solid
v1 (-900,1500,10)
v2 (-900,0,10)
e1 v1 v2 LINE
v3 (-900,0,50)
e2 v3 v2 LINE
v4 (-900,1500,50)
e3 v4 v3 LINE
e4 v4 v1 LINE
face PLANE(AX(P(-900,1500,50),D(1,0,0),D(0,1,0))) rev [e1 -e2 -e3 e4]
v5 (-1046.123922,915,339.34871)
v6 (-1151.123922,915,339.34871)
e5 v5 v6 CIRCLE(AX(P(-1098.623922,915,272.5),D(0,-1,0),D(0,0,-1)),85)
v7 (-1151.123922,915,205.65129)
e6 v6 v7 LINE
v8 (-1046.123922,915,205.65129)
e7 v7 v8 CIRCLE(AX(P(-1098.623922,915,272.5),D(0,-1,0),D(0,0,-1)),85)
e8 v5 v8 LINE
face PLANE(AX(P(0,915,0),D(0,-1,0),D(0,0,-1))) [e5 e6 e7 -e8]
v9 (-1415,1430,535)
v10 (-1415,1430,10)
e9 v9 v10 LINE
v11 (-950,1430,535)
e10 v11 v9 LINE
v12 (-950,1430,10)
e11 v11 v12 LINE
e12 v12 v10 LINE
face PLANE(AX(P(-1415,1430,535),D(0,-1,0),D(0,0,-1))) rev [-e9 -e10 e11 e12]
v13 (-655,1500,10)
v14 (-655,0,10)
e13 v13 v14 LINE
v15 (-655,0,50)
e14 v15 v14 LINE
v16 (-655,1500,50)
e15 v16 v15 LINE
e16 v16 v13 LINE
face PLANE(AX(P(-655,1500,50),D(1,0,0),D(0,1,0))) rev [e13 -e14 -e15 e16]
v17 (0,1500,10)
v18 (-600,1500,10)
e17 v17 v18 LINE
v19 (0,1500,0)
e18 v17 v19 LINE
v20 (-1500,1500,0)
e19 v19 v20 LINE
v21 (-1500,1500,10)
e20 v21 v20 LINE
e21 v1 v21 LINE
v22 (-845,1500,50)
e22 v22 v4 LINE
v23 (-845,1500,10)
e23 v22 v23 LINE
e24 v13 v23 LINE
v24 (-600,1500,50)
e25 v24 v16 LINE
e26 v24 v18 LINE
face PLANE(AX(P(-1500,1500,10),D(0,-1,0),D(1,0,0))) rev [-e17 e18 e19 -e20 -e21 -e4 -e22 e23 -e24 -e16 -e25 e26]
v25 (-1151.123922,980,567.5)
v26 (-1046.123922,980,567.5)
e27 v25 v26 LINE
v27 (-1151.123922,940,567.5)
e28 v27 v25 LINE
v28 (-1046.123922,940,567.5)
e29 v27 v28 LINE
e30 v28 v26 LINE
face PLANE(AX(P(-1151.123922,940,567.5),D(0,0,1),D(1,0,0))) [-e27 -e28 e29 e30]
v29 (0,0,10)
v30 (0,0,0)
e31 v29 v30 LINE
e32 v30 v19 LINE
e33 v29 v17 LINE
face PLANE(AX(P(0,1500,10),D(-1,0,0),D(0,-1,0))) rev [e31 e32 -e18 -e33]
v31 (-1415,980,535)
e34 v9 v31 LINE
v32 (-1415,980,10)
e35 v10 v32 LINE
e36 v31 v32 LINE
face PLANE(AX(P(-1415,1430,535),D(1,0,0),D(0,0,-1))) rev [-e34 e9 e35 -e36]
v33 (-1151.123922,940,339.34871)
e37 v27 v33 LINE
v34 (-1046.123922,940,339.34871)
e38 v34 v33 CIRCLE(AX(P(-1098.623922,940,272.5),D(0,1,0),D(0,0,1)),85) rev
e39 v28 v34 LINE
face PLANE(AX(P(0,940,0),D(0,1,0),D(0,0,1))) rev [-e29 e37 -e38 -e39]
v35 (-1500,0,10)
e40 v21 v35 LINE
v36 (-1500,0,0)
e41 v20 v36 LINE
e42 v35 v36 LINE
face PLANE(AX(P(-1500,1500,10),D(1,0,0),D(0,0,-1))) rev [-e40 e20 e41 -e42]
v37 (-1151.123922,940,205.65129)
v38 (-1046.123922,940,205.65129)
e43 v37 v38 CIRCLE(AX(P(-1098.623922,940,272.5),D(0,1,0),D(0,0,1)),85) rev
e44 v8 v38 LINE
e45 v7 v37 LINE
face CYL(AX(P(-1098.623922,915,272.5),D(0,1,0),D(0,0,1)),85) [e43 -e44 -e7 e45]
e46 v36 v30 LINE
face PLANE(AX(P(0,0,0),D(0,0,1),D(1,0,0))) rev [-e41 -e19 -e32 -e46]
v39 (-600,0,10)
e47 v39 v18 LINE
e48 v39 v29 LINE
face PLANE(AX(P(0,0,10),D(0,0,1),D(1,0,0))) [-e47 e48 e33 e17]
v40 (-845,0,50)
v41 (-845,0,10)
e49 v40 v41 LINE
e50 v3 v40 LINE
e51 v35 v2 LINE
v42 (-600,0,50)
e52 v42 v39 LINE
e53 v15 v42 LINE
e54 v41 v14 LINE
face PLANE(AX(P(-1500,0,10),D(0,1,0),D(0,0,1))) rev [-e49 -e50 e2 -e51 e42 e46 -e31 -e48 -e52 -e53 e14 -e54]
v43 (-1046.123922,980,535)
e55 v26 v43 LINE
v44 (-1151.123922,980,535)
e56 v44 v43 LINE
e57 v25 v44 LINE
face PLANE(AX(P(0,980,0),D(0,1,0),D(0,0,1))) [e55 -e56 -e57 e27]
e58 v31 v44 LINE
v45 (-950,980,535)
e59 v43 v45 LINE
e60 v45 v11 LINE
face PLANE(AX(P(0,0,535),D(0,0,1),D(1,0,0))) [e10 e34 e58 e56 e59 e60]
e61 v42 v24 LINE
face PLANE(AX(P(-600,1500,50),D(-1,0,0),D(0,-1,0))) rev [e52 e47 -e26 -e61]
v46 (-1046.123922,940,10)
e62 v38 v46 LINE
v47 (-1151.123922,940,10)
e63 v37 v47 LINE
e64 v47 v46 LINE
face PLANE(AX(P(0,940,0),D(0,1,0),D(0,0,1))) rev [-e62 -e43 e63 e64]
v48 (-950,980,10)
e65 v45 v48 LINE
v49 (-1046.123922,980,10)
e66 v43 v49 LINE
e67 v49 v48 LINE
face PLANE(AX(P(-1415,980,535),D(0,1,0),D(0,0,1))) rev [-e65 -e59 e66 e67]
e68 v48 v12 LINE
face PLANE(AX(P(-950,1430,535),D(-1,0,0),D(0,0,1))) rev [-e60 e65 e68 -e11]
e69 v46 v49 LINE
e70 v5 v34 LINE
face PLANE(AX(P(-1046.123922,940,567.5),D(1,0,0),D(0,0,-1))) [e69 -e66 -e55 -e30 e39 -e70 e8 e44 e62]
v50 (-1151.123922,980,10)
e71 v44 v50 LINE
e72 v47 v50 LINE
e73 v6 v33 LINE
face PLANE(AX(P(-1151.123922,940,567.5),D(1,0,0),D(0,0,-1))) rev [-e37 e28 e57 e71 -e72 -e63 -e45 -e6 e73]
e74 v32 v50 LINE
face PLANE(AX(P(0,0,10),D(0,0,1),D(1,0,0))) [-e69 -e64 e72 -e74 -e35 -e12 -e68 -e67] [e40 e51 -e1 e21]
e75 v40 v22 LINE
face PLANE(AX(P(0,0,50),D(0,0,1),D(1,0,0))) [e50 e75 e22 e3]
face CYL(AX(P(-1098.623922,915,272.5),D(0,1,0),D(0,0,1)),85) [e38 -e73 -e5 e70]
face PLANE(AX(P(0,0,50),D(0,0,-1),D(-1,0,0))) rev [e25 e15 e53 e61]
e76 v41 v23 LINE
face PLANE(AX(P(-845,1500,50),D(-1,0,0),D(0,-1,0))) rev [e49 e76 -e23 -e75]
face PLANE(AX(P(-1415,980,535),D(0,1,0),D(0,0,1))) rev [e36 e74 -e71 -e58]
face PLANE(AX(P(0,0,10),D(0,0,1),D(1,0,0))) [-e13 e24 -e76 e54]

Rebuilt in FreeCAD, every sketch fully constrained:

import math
import FreeCAD as App
import Part
import Sketcher
Q = App.Units.Quantity


def add_polygon(sketch, points):
    """Adds a closed chain of lines whose ends are joined by coincident constraints."""
    first, n = sketch.GeometryCount, len(points)
    for a, b in zip(points, points[1:] + points[:1]):
        sketch.addGeometry(Part.LineSegment(App.Vector(*a, 0), App.Vector(*b, 0)), False)
    for i in range(n):
        sketch.addConstraint(Sketcher.Constraint("Coincident", first + i, 2, first + (i + 1) % n, 1))

doc = App.newDocument("Part")
body = doc.addObject("PartDesign::Body", "Body")

# Sketch on XY plane
sketch1 = body.newObject("Sketcher::SketchObject", "Sketch")
sketch1.AttachmentSupport = (doc.getObject("XY_Plane"), [""])
sketch1.MapMode = "FlatFace"
add_polygon(sketch1, [(-1500, 1500), (-1500, 0), (0, 0), (0, 1500)])  # lines 0-3
sketch1.addConstraint([
    Sketcher.Constraint("Vertical", 0),
    Sketcher.Constraint("Horizontal", 1),
    Sketcher.Constraint("Vertical", 2),
    Sketcher.Constraint("Horizontal", 3),
    Sketcher.Constraint("Coincident", 1, 2, -1, 1),
    Sketcher.Constraint("Equal", 3, 0),
    Sketcher.Constraint("DistanceX", 1, 1, 1, 2, Q("1500 mm")),
])
pad1 = body.newObject("PartDesign::Pad", "Pad")
pad1.Profile = sketch1
pad1.Length = 10

# Sketch on XY plane
sketch2 = body.newObject("Sketcher::SketchObject", "Sketch001")
sketch2.AttachmentSupport = (doc.getObject("XY_Plane"), [""])
sketch2.MapMode = "FlatFace"
sketch2.AttachmentOffset = App.Placement(App.Vector(0, 0, 10), App.Rotation())
add_polygon(sketch2, [(-1415, 1430), (-1415, 980), (-950, 980), (-950, 1430)])  # lines 0-3
sketch2.addConstraint([
    Sketcher.Constraint("Vertical", 0),
    Sketcher.Constraint("Horizontal", 1),
    Sketcher.Constraint("Vertical", 2),
    Sketcher.Constraint("Horizontal", 3),
    Sketcher.Constraint("DistanceX", 1, 1, 1, 2, Q("465 mm")),
    Sketcher.Constraint("DistanceY", 0, 2, 0, 1, Q("450 mm")),
    Sketcher.Constraint("DistanceX", 0, 2, -1, 1, Q("1415 mm")),
    Sketcher.Constraint("DistanceY", -1, 1, 0, 2, Q("980 mm")),
])
pad2 = body.newObject("PartDesign::Pad", "Pad001")
pad2.Profile = sketch2
pad2.Length = 525

# Sketch on XZ plane
sketch3 = body.newObject("Sketcher::SketchObject", "Sketch002")
sketch3.AttachmentSupport = (doc.getObject("XZ_Plane"), [""])
sketch3.MapMode = "FlatFace"
sketch3.AttachmentOffset = App.Placement(App.Vector(0, 0, -980), App.Rotation())
add_polygon(sketch3, [(-1151.123922, 567.5), (-1151.123922, 10), (-1046.123922, 10), (-1046.123922, 567.5)])  # lines 0-3
sketch3.addConstraint([
    Sketcher.Constraint("Vertical", 0),
    Sketcher.Constraint("Horizontal", 1),
    Sketcher.Constraint("Vertical", 2),
    Sketcher.Constraint("Horizontal", 3),
    Sketcher.Constraint("DistanceX", 1, 1, 1, 2, Q("105 mm")),
    Sketcher.Constraint("DistanceY", 0, 2, 0, 1, Q("557.5 mm")),
    Sketcher.Constraint("DistanceY", -1, 1, 0, 2, Q("10 mm")),
    Sketcher.Constraint("DistanceX", 0, 2, -1, 1, Q("1151.123922 mm")),
])
pad3 = body.newObject("PartDesign::Pad", "Pad002")
pad3.Profile = sketch3
pad3.Length = 40

# Sketch on XZ plane
sketch4 = body.newObject("Sketcher::SketchObject", "Sketch003")
sketch4.AttachmentSupport = (doc.getObject("XZ_Plane"), [""])
sketch4.MapMode = "FlatFace"
sketch4.AttachmentOffset = App.Placement(App.Vector(0, 0, -980), App.Rotation())
sketch4.addGeometry([
    Part.ArcOfCircle(Part.Circle(App.Vector(-1098.623922, 272.5, 0), App.Vector(0, 0, 1), 85), math.radians(51.855487), math.radians(128.144513)),
    Part.LineSegment(App.Vector(-1151.123922, 339.34871, 0), App.Vector(-1151.123922, 205.65129, 0)),
    Part.ArcOfCircle(Part.Circle(App.Vector(-1098.623922, 272.5, 0), App.Vector(0, 0, 1), 85), math.radians(-128.144513), math.radians(-51.855487)),
    Part.LineSegment(App.Vector(-1046.123922, 205.65129, 0), App.Vector(-1046.123922, 339.34871, 0)),
], False)
sketch4.addConstraint([
    Sketcher.Constraint("Coincident", 0, 2, 1, 1),
    Sketcher.Constraint("Coincident", 1, 2, 2, 1),
    Sketcher.Constraint("Coincident", 2, 2, 3, 1),
    Sketcher.Constraint("Coincident", 3, 2, 0, 1),
    Sketcher.Constraint("Vertical", 1),
    Sketcher.Constraint("Vertical", 3),
    Sketcher.Constraint("Coincident", 2, 3, 0, 3),
    Sketcher.Constraint("Equal", 0, 2),
    Sketcher.Constraint("Horizontal", 1, 2, 2, 2),
    Sketcher.Constraint("Radius", 0, Q("85 mm")),
    Sketcher.Constraint("DistanceX", 1, 2, 2, 2, Q("105 mm")),
    Sketcher.Constraint("DistanceY", -1, 1, 0, 3, Q("272.5 mm")),
    Sketcher.Constraint("DistanceX", 0, 3, -1, 1, Q("1098.623922 mm")),
])
pad4 = body.newObject("PartDesign::Pad", "Pad003")
pad4.Profile = sketch4
pad4.Length = 65

# Sketch on XY plane
sketch5 = body.newObject("Sketcher::SketchObject", "Sketch004")
sketch5.AttachmentSupport = (doc.getObject("XY_Plane"), [""])
sketch5.MapMode = "FlatFace"
sketch5.AttachmentOffset = App.Placement(App.Vector(0, 0, 10), App.Rotation())
add_polygon(sketch5, [(-900, 1500), (-900, 0), (-845, 0), (-845, 1500)])  # lines 0-3
add_polygon(sketch5, [(-655, 1500), (-655, 0), (-600, 0), (-600, 1500)])  # lines 4-7
sketch5.addConstraint([
    Sketcher.Constraint("Vertical", 0),
    Sketcher.Constraint("Horizontal", 1),
    Sketcher.Constraint("Vertical", 2),
    Sketcher.Constraint("Horizontal", 3),
    Sketcher.Constraint("Vertical", 4),
    Sketcher.Constraint("Horizontal", 5),
    Sketcher.Constraint("Vertical", 6),
    Sketcher.Constraint("Horizontal", 7),
    Sketcher.Constraint("PointOnObject", 0, 2, -1),
    Sketcher.Constraint("PointOnObject", 4, 2, -1),
    Sketcher.Constraint("Horizontal", 3, 2, 6, 2),
    Sketcher.Constraint("Equal", 3, 5),
    Sketcher.Constraint("DistanceX", 1, 1, 1, 2, Q("55 mm")),
    Sketcher.Constraint("DistanceY", 0, 2, 0, 1, Q("1500 mm")),
    Sketcher.Constraint("DistanceX", 0, 2, -1, 1, Q("900 mm")),
    Sketcher.Constraint("DistanceX", 4, 2, -1, 1, Q("655 mm")),
])
pad5 = body.newObject("PartDesign::Pad", "Pad004")
pad5.Profile = sketch5
pad5.Length = 40

doc.recompute()
